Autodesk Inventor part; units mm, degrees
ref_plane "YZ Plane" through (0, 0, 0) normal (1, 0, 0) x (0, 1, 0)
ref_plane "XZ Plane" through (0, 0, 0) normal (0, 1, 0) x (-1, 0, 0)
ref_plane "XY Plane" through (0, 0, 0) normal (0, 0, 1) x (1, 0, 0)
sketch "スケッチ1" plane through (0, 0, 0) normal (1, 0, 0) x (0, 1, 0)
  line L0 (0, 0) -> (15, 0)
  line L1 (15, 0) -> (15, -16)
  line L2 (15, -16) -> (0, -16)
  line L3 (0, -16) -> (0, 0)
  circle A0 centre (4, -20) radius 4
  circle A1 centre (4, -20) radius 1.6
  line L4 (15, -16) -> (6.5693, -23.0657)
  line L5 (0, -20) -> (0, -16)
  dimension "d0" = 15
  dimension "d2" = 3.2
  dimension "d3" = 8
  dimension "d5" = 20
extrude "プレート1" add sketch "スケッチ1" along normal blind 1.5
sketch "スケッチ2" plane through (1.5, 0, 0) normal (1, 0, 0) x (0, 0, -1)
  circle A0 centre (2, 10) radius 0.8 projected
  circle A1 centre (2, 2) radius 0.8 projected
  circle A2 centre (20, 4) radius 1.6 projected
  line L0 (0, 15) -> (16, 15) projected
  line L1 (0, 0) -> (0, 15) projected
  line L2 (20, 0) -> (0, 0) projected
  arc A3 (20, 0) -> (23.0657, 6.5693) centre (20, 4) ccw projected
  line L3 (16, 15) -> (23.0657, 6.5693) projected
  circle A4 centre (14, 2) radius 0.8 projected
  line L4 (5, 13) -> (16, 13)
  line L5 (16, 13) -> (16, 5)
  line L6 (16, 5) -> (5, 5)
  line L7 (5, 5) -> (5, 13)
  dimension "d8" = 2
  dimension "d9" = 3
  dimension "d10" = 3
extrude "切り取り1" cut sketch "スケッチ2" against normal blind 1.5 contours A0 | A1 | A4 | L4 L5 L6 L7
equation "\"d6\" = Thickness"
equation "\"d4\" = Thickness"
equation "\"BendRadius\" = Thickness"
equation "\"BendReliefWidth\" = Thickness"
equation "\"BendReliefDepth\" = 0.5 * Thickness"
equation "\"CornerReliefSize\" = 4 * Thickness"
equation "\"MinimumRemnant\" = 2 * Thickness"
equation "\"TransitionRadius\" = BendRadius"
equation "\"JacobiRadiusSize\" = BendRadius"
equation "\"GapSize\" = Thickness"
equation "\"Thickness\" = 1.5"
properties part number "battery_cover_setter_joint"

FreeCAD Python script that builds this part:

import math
import FreeCAD as App
import Part
import Sketcher
from FreeCAD import Vector
Q = App.Units.Quantity


def add_polygon(sketch, points):
    """Adds a closed chain of lines whose ends are joined by coincident constraints."""
    first, n = sketch.GeometryCount, len(points)
    for a, b in zip(points, points[1:] + points[:1]):
        sketch.addGeometry(Part.LineSegment(App.Vector(*a, 0), App.Vector(*b, 0)), False)
    for i in range(n):
        sketch.addConstraint(Sketcher.Constraint("Coincident", first + i, 2, first + (i + 1) % n, 1))

doc = App.newDocument("Part")
params = doc.addObject("Spreadsheet::Sheet", "Params")
for row, (alias, value) in enumerate([
    ("sketch1_radius", "4 mm"),
    ("sketch1_diameter", "3.2 mm"),
    ("sketch1_width", "15 mm"),
    ("sketch1_height", "20 mm"),
    ("sketch1_height2", "16 mm"),
    ("pad1_length", "1.5 mm"),
    ("sketch2_diameter", "1.6 mm"),
    ("sketch2_width", "8 mm"),
    ("sketch2_height", "11 mm"),
    ("pocket1_length", "1.5 mm"),
], start=1):
    params.set(f"A{row}", alias)
    params.set(f"B{row}", "=" + value)
    params.setAlias(f"B{row}", alias)

body = doc.addObject("PartDesign::Body", "Body")

# Sketch on YZ plane
sketch1 = body.newObject("Sketcher::SketchObject", "Sketch")
sketch1.AttachmentSupport = (doc.getObject("YZ_Plane"), [""])
sketch1.MapMode = "FlatFace"
sketch1.addGeometry([
    Part.LineSegment(Vector(15, 0, 0), Vector(0, 0, 0)),  # 0
    Part.LineSegment(Vector(0, 0, 0), Vector(0, -20, 0)),  # 1
    Part.ArcOfCircle(Part.Circle(Vector(4, -20, 0), Vector(0, 0, 1), 4), math.radians(180), math.radians(310)),  # 2
    Part.LineSegment(Vector(6.6, -23.1, 0), Vector(15, -16, 0)),  # 3
    Part.LineSegment(Vector(15, -16, 0), Vector(15, 0, 0)),  # 4
    Part.Circle(Vector(4, -20, 0), Vector(0, 0, 1), 1.6),  # 5
], False)
sketch1.addConstraint([
    Sketcher.Constraint("Coincident", 0, 2, 1, 1),
    Sketcher.Constraint("Tangent", 1, 2, 2, 1),
    Sketcher.Constraint("Tangent", 2, 2, 3, 1),
    Sketcher.Constraint("Coincident", 3, 2, 4, 1),
    Sketcher.Constraint("Coincident", 4, 2, 0, 1),
    Sketcher.Constraint("Horizontal", 0),
    Sketcher.Constraint("Vertical", 1),
    Sketcher.Constraint("Vertical", 4),
    Sketcher.Constraint("Coincident", 0, 2, -1, 1),
    Sketcher.Constraint("Coincident", 5, 3, 2, 3),
    Sketcher.Constraint("Radius", 2, Q("4 mm")),
    Sketcher.Constraint("Diameter", 5, Q("3.2 mm")),
    Sketcher.Constraint("DistanceX", 0, 2, 0, 1, Q("15 mm")),
    Sketcher.Constraint("DistanceY", 1, 2, 1, 1, Q("20 mm")),
    Sketcher.Constraint("DistanceY", 4, 1, 4, 2, Q("16 mm")),
])
sketch1.setExpression("Constraints[10]", "Params.sketch1_radius")
sketch1.setExpression("Constraints[11]", "Params.sketch1_diameter")
sketch1.setExpression("Constraints[12]", "Params.sketch1_width")
sketch1.setExpression("Constraints[13]", "Params.sketch1_height")
sketch1.setExpression("Constraints[14]", "Params.sketch1_height2")
pad1 = body.newObject("PartDesign::Pad", "Pad")
pad1.Profile = sketch1
pad1.setExpression("Length", "Params.pad1_length")

# Sketch on YZ plane
sketch2 = body.newObject("Sketcher::SketchObject", "Sketch001")
sketch2.AttachmentSupport = (doc.getObject("YZ_Plane"), [""])
sketch2.MapMode = "FlatFace"
sketch2.AttachmentOffset = App.Placement(Vector(0, 0, 1.5), App.Rotation())
sketch2.addGeometry(Part.Circle(Vector(10, -2, 0), Vector(0, 0, 1), 0.8), False)  # 0
sketch2.addGeometry(Part.Circle(Vector(2, -2, 0), Vector(0, 0, 1), 0.8), False)  # 1
sketch2.addGeometry(Part.Circle(Vector(2, -14, 0), Vector(0, 0, 1), 0.8), False)  # 2
add_polygon(sketch2, [(13, -16), (13, -5), (5, -5), (5, -16)])  # lines 3-6
sketch2.addConstraint([
    Sketcher.Constraint("Vertical", 3),
    Sketcher.Constraint("Horizontal", 4),
    Sketcher.Constraint("Vertical", 5),
    Sketcher.Constraint("Horizontal", 6),
    Sketcher.Constraint("Equal", 0, 1),
    Sketcher.Constraint("Equal", 1, 2),
    Sketcher.Constraint("Horizontal", 0, 3, 1, 3),
    Sketcher.Constraint("Vertical", 1, 3, 2, 3),
    Sketcher.Constraint("DistanceY", 0, 3, -1, 1, Q("2 mm")),
    Sketcher.Constraint("DistanceX", -1, 1, 1, 3, Q("2 mm")),
    Sketcher.Constraint("DistanceX", 0, 3, 3, 2, Q("3 mm")),
    Sketcher.Constraint("DistanceY", 3, 2, 0, 3, Q("3 mm")),
    Sketcher.Constraint("DistanceX", 1, 3, 4, 2, Q("3 mm")),
    Sketcher.Constraint("DistanceY", 5, 2, 2, 3, Q("2 mm")),
    Sketcher.Constraint("Diameter", 0, Q("1.6 mm")),
    Sketcher.Constraint("DistanceX", 4, 2, 4, 1, Q("8 mm")),
    Sketcher.Constraint("DistanceY", 3, 1, 3, 2, Q("11 mm")),
])
sketch2.setExpression("Constraints[18]", "Params.sketch2_diameter")
sketch2.setExpression("Constraints[19]", "Params.sketch2_width")
sketch2.setExpression("Constraints[20]", "Params.sketch2_height")
pocket1 = body.newObject("PartDesign::Pocket", "Pocket")
pocket1.Profile = sketch2
pocket1.setExpression("Length", "Params.pocket1_length")

doc.recompute()
